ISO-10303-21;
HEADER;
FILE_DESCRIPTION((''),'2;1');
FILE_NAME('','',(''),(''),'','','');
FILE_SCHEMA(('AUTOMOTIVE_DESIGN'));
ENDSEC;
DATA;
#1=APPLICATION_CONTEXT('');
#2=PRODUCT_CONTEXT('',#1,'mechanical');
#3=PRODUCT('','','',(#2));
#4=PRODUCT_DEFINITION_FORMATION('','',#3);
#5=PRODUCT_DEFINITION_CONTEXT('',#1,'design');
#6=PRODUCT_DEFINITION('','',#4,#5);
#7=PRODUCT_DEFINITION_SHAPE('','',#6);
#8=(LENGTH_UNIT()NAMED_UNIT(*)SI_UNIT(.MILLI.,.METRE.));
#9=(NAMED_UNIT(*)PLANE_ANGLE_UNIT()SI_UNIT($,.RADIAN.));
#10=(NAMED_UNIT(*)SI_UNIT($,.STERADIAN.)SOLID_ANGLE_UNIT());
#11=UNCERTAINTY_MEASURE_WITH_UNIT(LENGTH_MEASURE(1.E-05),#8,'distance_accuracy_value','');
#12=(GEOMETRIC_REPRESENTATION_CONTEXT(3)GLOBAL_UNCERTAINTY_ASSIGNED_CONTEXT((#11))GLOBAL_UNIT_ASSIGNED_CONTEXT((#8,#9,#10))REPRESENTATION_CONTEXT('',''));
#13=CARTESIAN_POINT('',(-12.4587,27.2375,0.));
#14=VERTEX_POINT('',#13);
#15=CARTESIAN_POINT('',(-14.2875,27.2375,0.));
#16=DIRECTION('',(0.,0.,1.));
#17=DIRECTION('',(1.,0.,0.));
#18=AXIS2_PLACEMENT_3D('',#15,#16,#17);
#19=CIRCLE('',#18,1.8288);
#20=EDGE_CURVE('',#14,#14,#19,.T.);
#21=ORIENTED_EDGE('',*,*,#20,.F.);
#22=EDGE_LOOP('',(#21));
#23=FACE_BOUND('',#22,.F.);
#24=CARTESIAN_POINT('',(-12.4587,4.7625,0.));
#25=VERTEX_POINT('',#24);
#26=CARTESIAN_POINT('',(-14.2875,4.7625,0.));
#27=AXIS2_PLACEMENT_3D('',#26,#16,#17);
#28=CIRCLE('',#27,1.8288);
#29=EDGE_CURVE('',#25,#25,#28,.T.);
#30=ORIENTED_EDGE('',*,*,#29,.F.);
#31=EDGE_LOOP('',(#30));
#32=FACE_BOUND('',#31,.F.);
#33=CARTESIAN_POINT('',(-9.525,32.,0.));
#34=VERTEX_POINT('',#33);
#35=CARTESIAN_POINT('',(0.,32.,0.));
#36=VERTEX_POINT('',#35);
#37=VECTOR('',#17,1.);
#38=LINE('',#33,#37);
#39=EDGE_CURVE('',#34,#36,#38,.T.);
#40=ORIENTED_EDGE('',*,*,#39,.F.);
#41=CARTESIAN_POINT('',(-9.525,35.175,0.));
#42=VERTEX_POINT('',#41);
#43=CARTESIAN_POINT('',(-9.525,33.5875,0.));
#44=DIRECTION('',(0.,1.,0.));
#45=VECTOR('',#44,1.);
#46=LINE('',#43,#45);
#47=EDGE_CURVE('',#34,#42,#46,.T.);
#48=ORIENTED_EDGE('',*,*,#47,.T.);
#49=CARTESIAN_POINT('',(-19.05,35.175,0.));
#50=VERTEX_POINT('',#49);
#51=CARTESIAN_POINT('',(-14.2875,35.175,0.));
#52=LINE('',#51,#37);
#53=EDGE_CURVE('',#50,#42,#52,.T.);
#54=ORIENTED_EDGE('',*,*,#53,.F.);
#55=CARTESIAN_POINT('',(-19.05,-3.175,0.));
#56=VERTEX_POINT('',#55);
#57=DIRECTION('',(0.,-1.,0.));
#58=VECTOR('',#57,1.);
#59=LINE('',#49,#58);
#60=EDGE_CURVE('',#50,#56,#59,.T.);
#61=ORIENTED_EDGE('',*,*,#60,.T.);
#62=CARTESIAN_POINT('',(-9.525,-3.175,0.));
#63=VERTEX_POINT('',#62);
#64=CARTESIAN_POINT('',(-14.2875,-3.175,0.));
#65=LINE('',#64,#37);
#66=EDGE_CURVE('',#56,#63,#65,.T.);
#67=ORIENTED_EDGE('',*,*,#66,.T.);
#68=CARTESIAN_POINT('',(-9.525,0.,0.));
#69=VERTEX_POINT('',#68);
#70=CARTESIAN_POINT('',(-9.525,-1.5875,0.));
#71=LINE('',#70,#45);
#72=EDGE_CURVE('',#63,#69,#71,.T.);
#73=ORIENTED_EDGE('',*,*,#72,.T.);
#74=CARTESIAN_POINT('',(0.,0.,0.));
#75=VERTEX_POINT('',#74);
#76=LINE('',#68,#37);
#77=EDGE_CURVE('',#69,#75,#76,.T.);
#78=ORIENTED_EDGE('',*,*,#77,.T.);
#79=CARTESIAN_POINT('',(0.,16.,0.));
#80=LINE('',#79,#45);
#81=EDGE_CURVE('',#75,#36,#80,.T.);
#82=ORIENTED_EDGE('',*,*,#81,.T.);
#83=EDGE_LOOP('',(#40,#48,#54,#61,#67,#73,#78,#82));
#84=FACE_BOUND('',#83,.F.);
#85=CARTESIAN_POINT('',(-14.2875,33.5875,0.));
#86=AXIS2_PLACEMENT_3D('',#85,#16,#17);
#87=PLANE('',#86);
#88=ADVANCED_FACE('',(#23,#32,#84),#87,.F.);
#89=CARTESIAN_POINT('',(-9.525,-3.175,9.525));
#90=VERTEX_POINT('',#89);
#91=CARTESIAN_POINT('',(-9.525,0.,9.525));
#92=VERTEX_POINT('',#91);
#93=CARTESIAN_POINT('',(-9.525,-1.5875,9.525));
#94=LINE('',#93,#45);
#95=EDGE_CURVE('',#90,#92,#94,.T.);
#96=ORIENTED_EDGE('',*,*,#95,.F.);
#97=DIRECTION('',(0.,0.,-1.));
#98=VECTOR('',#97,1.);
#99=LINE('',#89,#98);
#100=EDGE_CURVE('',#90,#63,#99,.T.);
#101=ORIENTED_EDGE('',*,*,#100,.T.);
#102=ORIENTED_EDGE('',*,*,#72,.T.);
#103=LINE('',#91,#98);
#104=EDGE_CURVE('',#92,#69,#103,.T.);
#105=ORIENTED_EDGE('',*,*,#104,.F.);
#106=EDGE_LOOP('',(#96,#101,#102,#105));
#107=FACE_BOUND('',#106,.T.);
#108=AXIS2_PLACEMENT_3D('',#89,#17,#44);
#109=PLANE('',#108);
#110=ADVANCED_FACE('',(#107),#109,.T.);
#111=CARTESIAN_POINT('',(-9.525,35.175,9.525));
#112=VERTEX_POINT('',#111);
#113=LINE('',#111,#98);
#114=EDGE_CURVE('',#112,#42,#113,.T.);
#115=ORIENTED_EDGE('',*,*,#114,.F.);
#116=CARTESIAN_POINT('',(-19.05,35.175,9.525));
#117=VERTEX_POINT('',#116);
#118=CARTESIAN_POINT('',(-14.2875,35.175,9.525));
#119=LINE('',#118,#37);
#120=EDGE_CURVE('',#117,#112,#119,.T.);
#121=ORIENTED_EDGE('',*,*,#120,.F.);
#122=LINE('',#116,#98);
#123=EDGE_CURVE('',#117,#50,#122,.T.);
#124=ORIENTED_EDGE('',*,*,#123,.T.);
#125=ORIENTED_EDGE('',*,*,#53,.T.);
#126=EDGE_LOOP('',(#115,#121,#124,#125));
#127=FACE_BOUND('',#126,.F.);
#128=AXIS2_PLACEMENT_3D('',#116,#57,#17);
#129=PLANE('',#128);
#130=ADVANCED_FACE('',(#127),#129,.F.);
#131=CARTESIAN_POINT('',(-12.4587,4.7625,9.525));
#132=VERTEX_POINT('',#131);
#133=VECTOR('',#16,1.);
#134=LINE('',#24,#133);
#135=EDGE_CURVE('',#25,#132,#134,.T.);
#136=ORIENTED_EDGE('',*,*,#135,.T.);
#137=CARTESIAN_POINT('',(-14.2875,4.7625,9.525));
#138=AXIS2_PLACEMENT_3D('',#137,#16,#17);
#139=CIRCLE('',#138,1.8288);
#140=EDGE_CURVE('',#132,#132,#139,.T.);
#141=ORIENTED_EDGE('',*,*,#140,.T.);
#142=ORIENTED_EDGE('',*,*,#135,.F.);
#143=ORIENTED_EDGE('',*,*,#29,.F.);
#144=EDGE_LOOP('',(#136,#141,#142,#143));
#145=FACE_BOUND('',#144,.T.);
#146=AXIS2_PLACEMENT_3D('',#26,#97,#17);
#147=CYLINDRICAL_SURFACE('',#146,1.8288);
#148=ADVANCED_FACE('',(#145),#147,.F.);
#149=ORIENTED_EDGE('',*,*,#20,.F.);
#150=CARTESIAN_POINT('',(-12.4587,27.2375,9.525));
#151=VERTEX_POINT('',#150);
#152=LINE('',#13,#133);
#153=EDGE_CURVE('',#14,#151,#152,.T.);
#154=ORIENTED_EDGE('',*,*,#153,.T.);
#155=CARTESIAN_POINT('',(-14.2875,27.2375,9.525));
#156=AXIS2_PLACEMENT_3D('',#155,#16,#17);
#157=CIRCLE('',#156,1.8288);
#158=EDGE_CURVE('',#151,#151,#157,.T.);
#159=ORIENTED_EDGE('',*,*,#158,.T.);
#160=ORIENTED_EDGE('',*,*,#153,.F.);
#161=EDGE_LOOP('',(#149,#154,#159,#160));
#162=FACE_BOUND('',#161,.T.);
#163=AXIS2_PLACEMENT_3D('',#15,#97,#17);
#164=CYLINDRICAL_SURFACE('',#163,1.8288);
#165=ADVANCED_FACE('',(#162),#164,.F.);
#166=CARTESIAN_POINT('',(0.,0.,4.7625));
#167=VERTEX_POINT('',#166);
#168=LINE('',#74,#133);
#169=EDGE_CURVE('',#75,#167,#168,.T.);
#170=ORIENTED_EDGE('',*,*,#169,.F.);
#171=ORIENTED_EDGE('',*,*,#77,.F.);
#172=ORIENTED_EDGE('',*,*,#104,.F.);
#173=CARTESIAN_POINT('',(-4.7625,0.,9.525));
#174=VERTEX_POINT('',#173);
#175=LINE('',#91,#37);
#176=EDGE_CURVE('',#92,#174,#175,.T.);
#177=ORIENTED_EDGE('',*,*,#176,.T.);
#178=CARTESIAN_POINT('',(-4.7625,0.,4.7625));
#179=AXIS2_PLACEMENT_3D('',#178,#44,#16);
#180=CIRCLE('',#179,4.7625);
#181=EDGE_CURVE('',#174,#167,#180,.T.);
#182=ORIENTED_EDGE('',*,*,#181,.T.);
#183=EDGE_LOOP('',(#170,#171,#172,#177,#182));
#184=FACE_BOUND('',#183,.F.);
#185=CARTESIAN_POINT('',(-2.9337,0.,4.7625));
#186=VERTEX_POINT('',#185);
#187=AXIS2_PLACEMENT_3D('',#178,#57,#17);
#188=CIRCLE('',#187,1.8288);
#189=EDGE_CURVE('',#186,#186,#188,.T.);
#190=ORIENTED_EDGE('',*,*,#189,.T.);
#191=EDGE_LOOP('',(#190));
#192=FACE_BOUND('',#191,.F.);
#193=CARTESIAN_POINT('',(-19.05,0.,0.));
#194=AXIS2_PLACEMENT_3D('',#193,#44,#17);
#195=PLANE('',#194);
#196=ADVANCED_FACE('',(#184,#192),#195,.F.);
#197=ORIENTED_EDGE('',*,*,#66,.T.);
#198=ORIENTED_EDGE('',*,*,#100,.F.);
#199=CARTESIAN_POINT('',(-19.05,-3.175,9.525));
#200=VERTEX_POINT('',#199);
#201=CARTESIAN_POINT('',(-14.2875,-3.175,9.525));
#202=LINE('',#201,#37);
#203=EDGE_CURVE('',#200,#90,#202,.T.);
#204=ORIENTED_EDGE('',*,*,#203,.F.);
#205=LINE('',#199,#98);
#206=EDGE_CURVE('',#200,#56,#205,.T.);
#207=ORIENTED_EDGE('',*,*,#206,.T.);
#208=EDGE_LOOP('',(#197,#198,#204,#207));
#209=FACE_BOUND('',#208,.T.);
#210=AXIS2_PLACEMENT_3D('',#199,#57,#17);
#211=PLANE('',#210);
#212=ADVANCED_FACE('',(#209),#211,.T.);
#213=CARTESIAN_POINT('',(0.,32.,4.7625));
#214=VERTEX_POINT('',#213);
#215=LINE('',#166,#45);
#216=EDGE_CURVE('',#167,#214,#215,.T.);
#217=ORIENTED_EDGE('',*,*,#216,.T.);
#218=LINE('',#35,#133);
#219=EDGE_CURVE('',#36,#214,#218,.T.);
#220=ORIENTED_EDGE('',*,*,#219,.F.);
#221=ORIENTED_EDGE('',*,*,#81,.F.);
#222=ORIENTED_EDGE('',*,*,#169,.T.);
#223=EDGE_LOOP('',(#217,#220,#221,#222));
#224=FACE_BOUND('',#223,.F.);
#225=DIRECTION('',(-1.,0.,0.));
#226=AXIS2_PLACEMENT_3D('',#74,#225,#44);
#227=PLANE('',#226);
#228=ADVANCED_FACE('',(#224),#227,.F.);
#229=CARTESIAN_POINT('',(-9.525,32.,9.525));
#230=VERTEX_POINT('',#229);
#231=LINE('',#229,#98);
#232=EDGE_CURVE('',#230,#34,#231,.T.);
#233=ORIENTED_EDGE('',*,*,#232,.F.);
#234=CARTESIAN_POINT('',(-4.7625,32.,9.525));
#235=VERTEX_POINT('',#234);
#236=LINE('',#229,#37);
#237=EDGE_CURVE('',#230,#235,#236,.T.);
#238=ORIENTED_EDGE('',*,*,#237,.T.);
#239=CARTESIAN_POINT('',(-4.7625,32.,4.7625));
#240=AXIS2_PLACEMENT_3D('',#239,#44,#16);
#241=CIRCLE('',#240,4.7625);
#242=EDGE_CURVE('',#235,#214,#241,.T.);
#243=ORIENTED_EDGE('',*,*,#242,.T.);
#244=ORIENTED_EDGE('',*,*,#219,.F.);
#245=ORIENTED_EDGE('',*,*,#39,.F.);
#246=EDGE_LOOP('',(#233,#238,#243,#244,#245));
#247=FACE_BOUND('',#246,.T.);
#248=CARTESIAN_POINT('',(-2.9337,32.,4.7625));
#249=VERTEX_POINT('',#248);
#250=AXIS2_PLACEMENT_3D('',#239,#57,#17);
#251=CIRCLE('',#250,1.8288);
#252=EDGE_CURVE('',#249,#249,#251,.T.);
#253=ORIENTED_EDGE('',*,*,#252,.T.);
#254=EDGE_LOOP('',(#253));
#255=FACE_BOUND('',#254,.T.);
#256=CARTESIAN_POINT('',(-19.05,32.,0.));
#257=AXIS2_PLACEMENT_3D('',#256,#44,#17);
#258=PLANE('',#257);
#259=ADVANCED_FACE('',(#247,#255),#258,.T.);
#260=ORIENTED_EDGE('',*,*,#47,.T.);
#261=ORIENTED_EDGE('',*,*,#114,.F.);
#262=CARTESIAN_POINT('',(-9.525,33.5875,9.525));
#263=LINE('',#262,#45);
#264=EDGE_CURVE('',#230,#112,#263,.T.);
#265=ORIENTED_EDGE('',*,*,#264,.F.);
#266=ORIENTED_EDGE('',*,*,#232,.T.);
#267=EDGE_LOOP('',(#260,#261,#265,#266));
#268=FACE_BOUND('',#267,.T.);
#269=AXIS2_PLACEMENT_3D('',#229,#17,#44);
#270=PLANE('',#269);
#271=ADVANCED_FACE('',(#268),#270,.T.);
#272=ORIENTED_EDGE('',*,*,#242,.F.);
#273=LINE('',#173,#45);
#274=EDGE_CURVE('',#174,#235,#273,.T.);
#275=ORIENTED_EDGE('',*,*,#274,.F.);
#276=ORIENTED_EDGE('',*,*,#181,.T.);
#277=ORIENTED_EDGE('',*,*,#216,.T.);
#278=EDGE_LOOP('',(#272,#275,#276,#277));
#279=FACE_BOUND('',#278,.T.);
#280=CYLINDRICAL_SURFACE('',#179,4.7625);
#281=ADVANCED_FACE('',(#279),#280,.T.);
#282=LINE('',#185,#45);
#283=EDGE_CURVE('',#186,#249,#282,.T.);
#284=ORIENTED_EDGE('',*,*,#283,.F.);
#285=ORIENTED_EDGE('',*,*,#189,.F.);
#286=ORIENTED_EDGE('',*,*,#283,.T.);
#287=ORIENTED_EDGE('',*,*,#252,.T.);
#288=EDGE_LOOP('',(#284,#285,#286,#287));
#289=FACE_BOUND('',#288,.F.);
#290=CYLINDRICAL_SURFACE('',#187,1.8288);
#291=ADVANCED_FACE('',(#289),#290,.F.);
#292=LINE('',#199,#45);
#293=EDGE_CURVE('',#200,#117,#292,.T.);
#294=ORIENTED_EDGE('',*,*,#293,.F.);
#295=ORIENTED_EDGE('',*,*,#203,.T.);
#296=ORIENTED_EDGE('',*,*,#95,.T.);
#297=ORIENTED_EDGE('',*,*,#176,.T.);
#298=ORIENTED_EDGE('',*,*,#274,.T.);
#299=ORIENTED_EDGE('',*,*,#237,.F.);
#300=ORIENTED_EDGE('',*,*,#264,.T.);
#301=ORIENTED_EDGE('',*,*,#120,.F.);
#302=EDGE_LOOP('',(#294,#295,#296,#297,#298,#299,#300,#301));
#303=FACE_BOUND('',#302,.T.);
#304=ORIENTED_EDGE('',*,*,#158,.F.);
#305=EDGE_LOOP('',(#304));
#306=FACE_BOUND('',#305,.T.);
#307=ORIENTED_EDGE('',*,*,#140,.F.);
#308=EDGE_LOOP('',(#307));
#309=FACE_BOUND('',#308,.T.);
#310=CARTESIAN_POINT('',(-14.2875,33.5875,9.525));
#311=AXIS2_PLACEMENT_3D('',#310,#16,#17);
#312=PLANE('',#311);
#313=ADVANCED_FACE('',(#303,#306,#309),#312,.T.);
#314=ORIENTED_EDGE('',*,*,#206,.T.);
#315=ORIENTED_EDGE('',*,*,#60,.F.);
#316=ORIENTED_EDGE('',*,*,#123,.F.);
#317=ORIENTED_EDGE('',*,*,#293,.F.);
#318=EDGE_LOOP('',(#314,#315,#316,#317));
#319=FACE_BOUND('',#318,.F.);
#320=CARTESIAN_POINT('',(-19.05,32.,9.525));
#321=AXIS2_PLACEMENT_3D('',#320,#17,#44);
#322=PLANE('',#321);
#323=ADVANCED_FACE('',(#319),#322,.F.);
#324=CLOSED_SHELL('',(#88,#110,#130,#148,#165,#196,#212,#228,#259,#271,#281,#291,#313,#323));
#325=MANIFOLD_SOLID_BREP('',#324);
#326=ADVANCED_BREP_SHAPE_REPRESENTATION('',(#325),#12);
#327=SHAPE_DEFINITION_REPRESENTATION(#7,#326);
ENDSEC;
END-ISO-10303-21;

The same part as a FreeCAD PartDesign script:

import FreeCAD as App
import Part
import Sketcher

V = App.Vector
Q = App.Units.Quantity


def edges_at(feature, points):
    """Names of the edges that pass closest to the given points."""
    edges = feature.Shape.Edges
    near = lambda p: min(range(len(edges)), key=lambda i: edges[i].distToShape(Part.Vertex(*p))[0])
    return sorted({f"Edge{near(p) + 1}" for p in points})

doc = App.newDocument("Part")
body = doc.addObject("PartDesign::Body", "Body")

sketch1 = body.newObject("Sketcher::SketchObject", "Sketch")
sketch1.AttachmentSupport = (doc.getObject("XY_Plane"), [""])
sketch1.MapMode = "FlatFace"
sketch1.addGeometry(Part.LineSegment(V(-19.1, 32, 0), V(-19.1, 0, 0)), False)
sketch1.addGeometry(Part.LineSegment(V(-19.1, 0, 0), V(0, 0, 0)), False)
sketch1.addGeometry(Part.LineSegment(V(0, 0, 0), V(0, 32, 0)), False)
sketch1.addGeometry(Part.LineSegment(V(0, 32, 0), V(-19.1, 32, 0)), False)
sketch1.addGeometry(Part.Circle(V(-14.3, 4.8, 0), V(0, 0, 1), 1.8), False)
sketch1.addGeometry(Part.Circle(V(-14.3, 27.2, 0), V(0, 0, 1), 1.8), False)
sketch1.addConstraint(Sketcher.Constraint("Coincident", 0, 2, 1, 1))
sketch1.addConstraint(Sketcher.Constraint("Coincident", 1, 2, 2, 1))
sketch1.addConstraint(Sketcher.Constraint("Coincident", 2, 2, 3, 1))
sketch1.addConstraint(Sketcher.Constraint("Coincident", 3, 2, 0, 1))
sketch1.addConstraint(Sketcher.Constraint("Vertical", 0))
sketch1.addConstraint(Sketcher.Constraint("Horizontal", 1))
sketch1.addConstraint(Sketcher.Constraint("Vertical", 2))
sketch1.addConstraint(Sketcher.Constraint("Horizontal", 3))
sketch1.addConstraint(Sketcher.Constraint("Coincident", 1, 2, -1, 1))
sketch1.addConstraint(Sketcher.Constraint("Equal", 4, 5))
sketch1.addConstraint(Sketcher.Constraint("Vertical", 4, 3, 5, 3))
sketch1.addConstraint(Sketcher.Constraint("Diameter", 4, Q("0.144 in")))
sketch1.addConstraint(Sketcher.Constraint("DistanceX", 1, 1, 1, 2, Q("0.75 in")))
sketch1.addConstraint(Sketcher.Constraint("DistanceX", 4, 3, -1, 1, Q("0.5625 in")))
sketch1.addConstraint(Sketcher.Constraint("DistanceY", -1, 1, 4, 3, Q("0.1875 in")))
sketch1.addConstraint(Sketcher.Constraint("DistanceY", 5, 3, 2, 2, Q("0.1875 in")))
sketch1.addConstraint(Sketcher.Constraint("DistanceY", 0, 2, 0, 1, 32.0))
pad1 = body.newObject("PartDesign::Pad", "Pad")
pad1.Profile = sketch1
pad1.Length = Q("0.375 in")

sketch2 = body.newObject("Sketcher::SketchObject", "Sketch001")
sketch2.AttachmentSupport = (doc.getObject("XZ_Plane"), [""])
sketch2.MapMode = "FlatFace"
sketch2.addGeometry(Part.Circle(V(-4.8, 4.8, 0), V(0, 0, 1), 1.8), False)
sketch2.addConstraint(Sketcher.Constraint("Diameter", 0, Q("0.144 in")))
sketch2.addConstraint(Sketcher.Constraint("DistanceX", 0, 3, -1, 1, Q("0.1875 in")))
sketch2.addConstraint(Sketcher.Constraint("DistanceY", -1, 1, 0, 3, Q("0.1875 in")))
pocket1 = body.newObject("PartDesign::Pocket", "Pocket")
pocket1.Profile = sketch2
pocket1.Type = "ThroughAll"
doc.recompute()

fillet = body.newObject("PartDesign::Fillet", "Fillet")
fillet.Base = (pocket1, edges_at(pocket1, [(0, 16, 9.525)]))
fillet.Radius = Q("0.1875 in")

sketch3 = body.newObject("Sketcher::SketchObject", "Sketch002")
sketch3.AttachmentSupport = (doc.getObject("XY_Plane"), [""])
sketch3.MapMode = "FlatFace"
sketch3.AttachmentOffset = App.Placement(V(0, 0, 0.375 * 25.4), App.Rotation())
sketch3.addGeometry(Part.LineSegment(V(-19.1, 35.2, 0), V(-19.1, 32, 0)), False)
sketch3.addGeometry(Part.LineSegment(V(-19.1, 32, 0), V(-9.5, 32, 0)), False)
sketch3.addGeometry(Part.LineSegment(V(-9.5, 32, 0), V(-9.5, 35.2, 0)), False)
sketch3.addGeometry(Part.LineSegment(V(-9.5, 35.2, 0), V(-19.1, 35.2, 0)), False)
sketch3.addGeometry(Part.LineSegment(V(-19.1, 0, 0), V(-19.1, -3.2, 0)), False)
sketch3.addGeometry(Part.LineSegment(V(-19.1, -3.2, 0), V(-9.5, -3.2, 0)), False)
sketch3.addGeometry(Part.LineSegment(V(-9.5, -3.2, 0), V(-9.5, 0, 0)), False)
sketch3.addGeometry(Part.LineSegment(V(-9.5, 0, 0), V(-19.1, 0, 0)), False)
sketch3.addConstraint(Sketcher.Constraint("Coincident", 0, 2, 1, 1))
sketch3.addConstraint(Sketcher.Constraint("Coincident", 1, 2, 2, 1))
sketch3.addConstraint(Sketcher.Constraint("Coincident", 2, 2, 3, 1))
sketch3.addConstraint(Sketcher.Constraint("Coincident", 3, 2, 0, 1))
sketch3.addConstraint(Sketcher.Constraint("Coincident", 4, 2, 5, 1))
sketch3.addConstraint(Sketcher.Constraint("Coincident", 5, 2, 6, 1))
sketch3.addConstraint(Sketcher.Constraint("Coincident", 6, 2, 7, 1))
sketch3.addConstraint(Sketcher.Constraint("Coincident", 7, 2, 4, 1))
sketch3.addConstraint(Sketcher.Constraint("Vertical", 0))
sketch3.addConstraint(Sketcher.Constraint("Horizontal", 1))
sketch3.addConstraint(Sketcher.Constraint("Vertical", 2))
sketch3.addConstraint(Sketcher.Constraint("Horizontal", 3))
sketch3.addConstraint(Sketcher.Constraint("Vertical", 4))
sketch3.addConstraint(Sketcher.Constraint("Horizontal", 5))
sketch3.addConstraint(Sketcher.Constraint("Vertical", 6))
sketch3.addConstraint(Sketcher.Constraint("Horizontal", 7))
sketch3.addConstraint(Sketcher.Constraint("PointOnObject", 6, 2, -1))
sketch3.addConstraint(Sketcher.Constraint("Vertical", 3, 2, 4, 2))
sketch3.addConstraint(Sketcher.Constraint("Vertical", 2, 2, 5, 2))
sketch3.addConstraint(Sketcher.Constraint("Equal", 2, 4))
sketch3.addConstraint(Sketcher.Constraint("DistanceX", 1, 1, 1, 2, Q("0.375 in")))
sketch3.addConstraint(Sketcher.Constraint("DistanceY", 0, 2, 0, 1, Q("0.125 in")))
sketch3.addConstraint(Sketcher.Constraint("DistanceX", 0, 2, -1, 1, Q("0.75 in")))
sketch3.addConstraint(Sketcher.Constraint("DistanceY", -1, 1, 0, 2, 32.0))
pad2 = body.newObject("PartDesign::Pad", "Pad001")
pad2.Profile = sketch3
pad2.Type = "UpToLast"
pad2.Reversed = True

doc.recompute()
